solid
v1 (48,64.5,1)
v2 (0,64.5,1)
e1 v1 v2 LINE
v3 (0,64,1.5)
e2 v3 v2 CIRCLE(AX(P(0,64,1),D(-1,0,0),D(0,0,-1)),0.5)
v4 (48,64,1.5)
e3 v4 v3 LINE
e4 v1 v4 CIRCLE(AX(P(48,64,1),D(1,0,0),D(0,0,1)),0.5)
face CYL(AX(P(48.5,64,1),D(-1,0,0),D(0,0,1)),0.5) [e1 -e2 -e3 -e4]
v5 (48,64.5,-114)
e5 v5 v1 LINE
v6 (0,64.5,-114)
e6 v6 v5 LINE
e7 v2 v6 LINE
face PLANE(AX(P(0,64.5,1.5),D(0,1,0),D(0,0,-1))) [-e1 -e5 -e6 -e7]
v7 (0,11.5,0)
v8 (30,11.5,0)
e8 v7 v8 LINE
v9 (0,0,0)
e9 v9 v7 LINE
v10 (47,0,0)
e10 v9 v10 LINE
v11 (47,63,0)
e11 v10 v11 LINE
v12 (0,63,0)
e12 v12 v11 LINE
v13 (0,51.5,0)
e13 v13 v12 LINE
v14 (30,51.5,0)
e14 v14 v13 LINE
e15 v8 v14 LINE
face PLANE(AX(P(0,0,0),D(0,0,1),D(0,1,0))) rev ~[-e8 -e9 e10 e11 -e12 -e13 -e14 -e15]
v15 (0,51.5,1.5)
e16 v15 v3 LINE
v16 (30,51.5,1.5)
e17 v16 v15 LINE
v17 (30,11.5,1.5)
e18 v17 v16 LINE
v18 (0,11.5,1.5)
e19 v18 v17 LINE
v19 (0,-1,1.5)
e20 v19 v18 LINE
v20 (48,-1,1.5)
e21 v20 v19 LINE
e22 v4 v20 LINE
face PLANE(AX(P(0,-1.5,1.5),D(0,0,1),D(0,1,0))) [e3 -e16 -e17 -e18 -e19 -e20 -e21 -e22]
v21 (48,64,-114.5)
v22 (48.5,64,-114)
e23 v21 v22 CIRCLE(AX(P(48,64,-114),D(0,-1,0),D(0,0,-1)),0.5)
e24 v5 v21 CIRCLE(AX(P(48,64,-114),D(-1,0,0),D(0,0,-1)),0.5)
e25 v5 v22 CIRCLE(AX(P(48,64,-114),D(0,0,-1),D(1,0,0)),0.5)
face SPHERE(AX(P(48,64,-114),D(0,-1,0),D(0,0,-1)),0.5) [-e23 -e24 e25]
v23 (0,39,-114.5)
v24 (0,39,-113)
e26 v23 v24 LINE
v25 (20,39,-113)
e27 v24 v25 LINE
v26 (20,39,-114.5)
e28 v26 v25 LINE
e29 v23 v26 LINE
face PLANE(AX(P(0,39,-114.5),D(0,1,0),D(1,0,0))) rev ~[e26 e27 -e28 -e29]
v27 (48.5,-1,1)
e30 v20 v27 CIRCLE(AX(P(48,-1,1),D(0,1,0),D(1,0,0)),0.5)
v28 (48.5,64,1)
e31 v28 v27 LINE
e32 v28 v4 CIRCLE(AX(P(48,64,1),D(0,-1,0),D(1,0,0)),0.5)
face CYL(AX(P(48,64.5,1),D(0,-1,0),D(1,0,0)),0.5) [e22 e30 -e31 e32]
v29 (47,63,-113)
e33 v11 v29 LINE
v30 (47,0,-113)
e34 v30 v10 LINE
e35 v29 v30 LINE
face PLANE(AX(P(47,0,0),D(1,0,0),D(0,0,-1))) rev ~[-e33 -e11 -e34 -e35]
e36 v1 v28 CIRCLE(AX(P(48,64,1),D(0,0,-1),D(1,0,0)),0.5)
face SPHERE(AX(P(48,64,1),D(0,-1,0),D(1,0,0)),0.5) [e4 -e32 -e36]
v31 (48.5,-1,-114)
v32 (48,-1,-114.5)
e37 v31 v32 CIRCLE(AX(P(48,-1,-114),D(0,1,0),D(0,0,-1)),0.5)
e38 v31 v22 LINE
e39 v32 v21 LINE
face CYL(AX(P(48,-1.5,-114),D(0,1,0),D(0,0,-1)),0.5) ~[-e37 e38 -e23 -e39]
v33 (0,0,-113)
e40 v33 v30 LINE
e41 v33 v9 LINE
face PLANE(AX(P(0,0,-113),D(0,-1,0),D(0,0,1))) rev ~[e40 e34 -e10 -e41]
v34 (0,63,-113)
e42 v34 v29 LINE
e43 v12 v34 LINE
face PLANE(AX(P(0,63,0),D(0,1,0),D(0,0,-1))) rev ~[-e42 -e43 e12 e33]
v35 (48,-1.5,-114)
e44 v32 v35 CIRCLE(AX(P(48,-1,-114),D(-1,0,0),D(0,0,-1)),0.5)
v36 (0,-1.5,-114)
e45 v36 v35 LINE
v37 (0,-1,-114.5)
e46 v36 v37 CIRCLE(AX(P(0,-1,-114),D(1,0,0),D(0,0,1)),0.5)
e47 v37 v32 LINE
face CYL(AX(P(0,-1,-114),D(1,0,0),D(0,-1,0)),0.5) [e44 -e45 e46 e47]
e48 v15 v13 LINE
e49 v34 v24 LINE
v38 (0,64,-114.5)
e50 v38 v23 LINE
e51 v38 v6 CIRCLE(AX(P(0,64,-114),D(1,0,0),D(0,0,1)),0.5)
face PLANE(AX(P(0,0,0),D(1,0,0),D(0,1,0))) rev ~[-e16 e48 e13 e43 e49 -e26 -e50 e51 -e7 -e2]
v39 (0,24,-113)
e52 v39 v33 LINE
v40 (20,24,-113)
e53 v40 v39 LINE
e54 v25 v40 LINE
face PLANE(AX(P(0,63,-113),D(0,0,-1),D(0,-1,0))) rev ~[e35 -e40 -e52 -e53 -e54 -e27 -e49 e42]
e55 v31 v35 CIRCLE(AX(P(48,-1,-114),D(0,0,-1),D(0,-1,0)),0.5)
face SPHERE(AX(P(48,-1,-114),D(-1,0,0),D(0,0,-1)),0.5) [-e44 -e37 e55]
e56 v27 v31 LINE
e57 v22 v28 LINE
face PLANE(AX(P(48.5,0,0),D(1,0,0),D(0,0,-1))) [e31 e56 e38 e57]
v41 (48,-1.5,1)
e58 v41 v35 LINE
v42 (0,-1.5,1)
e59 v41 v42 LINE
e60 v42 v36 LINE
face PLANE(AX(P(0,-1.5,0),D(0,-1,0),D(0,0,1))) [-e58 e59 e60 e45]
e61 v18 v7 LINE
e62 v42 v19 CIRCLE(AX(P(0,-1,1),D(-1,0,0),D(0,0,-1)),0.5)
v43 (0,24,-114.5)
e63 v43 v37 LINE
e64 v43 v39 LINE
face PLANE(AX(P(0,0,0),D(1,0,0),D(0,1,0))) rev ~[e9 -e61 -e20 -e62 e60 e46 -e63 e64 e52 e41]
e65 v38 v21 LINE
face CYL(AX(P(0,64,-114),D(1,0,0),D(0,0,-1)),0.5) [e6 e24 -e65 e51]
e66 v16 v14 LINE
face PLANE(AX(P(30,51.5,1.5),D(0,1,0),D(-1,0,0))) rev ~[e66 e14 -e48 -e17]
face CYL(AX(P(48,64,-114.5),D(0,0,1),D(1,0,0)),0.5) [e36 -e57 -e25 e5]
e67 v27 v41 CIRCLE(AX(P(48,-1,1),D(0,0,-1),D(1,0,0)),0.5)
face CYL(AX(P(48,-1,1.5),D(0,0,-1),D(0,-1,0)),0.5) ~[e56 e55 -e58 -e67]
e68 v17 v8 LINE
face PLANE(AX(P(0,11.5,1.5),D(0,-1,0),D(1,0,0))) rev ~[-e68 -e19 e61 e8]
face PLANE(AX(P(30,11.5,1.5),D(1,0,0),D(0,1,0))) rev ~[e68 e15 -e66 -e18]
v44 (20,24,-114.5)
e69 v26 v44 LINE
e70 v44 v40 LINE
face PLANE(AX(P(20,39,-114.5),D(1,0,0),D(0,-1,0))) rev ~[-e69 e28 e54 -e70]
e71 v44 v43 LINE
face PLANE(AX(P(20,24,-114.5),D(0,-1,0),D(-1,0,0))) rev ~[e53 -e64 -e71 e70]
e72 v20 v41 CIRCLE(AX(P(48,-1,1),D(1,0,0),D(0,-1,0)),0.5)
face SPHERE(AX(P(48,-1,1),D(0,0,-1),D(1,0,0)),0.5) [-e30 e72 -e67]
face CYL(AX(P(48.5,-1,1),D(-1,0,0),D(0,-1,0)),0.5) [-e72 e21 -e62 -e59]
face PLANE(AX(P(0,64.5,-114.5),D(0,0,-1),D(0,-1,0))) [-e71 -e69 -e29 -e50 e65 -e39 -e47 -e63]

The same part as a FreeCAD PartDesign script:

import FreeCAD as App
import Part
import Sketcher

V = App.Vector


def edges_at(feature, points):
    """Names of the edges that pass closest to the given points."""
    edges = feature.Shape.Edges
    near = lambda p: min(range(len(edges)), key=lambda i: edges[i].distToShape(Part.Vertex(*p))[0])
    return sorted({f"Edge{near(p) + 1}" for p in points})


def add_polygon(sketch, points):
    """Adds a closed chain of lines whose ends are joined by coincident constraints."""
    first, n = sketch.GeometryCount, len(points)
    for a, b in zip(points, points[1:] + points[:1]):
        sketch.addGeometry(Part.LineSegment(App.Vector(*a, 0), App.Vector(*b, 0)), False)
    for i in range(n):
        sketch.addConstraint(Sketcher.Constraint("Coincident", first + i, 2, first + (i + 1) % n, 1))

doc = App.newDocument("Part")
body = doc.addObject("PartDesign::Body", "Body")

# Sketch on YZ plane
sketch1 = body.newObject("Sketcher::SketchObject", "Sketch")
sketch1.AttachmentSupport = (doc.getObject("YZ_Plane"), [""])
sketch1.MapMode = "FlatFace"
add_polygon(sketch1, [(-1.5, 1.5), (-1.5, 0), (-1.5, -114.5), (64.5, -114.5), (64.5, 1.5)])  # lines 0-4
add_polygon(sketch1, [(0, -113), (0, 0), (63, 0), (63, -113)])  # lines 5-8
sketch1.addConstraint([
    Sketcher.Constraint("Vertical", 0),
    Sketcher.Constraint("Vertical", 1),
    Sketcher.Constraint("Horizontal", 2),
    Sketcher.Constraint("Vertical", 3),
    Sketcher.Constraint("Horizontal", 4),
    Sketcher.Constraint("Vertical", 5),
    Sketcher.Constraint("Horizontal", 6),
    Sketcher.Constraint("Vertical", 7),
    Sketcher.Constraint("Horizontal", 8),
    Sketcher.Constraint("Coincident", 5, 2, -1, 1),
    Sketcher.Constraint("PointOnObject", 0, 2, -1),
    Sketcher.Constraint("DistanceX", 2, 1, 2, 2, 66.0),
    Sketcher.Constraint("DistanceX", 6, 1, 6, 2, 63.0),
    Sketcher.Constraint("DistanceY", 3, 1, 3, 2, 116.0),
    Sketcher.Constraint("DistanceY", 5, 1, 5, 2, 113.0),
    Sketcher.Constraint("DistanceY", 0, 2, 0, 1, 1.5),
    Sketcher.Constraint("DistanceX", 0, 2, -1, 1, 1.5),
])
pad1 = body.newObject("PartDesign::Pad", "Pad")
pad1.Profile = sketch1
pad1.Length = 47

# Sketch on YZ plane
sketch2 = body.newObject("Sketcher::SketchObject", "Sketch001")
sketch2.AttachmentSupport = (doc.getObject("YZ_Plane"), [""])
sketch2.MapMode = "FlatFace"
sketch2.AttachmentOffset = App.Placement(V(0, 0, 47), App.Rotation())
add_polygon(sketch2, [(-2, 2), (-2, -114), (64, -114), (64, 2)])  # lines 0-3
sketch2.addConstraint([
    Sketcher.Constraint("Vertical", 0),
    Sketcher.Constraint("Horizontal", 1),
    Sketcher.Constraint("Vertical", 2),
    Sketcher.Constraint("Horizontal", 3),
    Sketcher.Constraint("DistanceX", 1, 1, 1, 2, 66.0),
    Sketcher.Constraint("DistanceY", 0, 2, 0, 1, 116.0),
    Sketcher.Constraint("DistanceX", 0, 2, -1, 1, 1.5),
    Sketcher.Constraint("DistanceY", 0, 2, -1, 1, 114.5),
])
pad2 = body.newObject("PartDesign::Pad", "Pad001")
pad2.Profile = sketch2
pad2.Length = 1.5

# Sketch on XY plane
sketch3 = body.newObject("Sketcher::SketchObject", "Sketch002")
sketch3.AttachmentSupport = (doc.getObject("XY_Plane"), [""])
sketch3.MapMode = "FlatFace"
sketch3.AttachmentOffset = App.Placement(V(0, 0, 1.5), App.Rotation())
add_polygon(sketch3, [(30, 52), (0, 52), (0, 12), (30, 12)])  # lines 0-3
sketch3.addConstraint([
    Sketcher.Constraint("Horizontal", 0),
    Sketcher.Constraint("Vertical", 1),
    Sketcher.Constraint("Horizontal", 2),
    Sketcher.Constraint("Vertical", 3),
    Sketcher.Constraint("PointOnObject", 0, 2, -2),
    Sketcher.Constraint("DistanceX", 0, 2, 0, 1, 30.0),
    Sketcher.Constraint("DistanceY", 1, 2, 1, 1, 40.0),
    Sketcher.Constraint("DistanceY", -1, 1, 0, 2, 51.5),
])
pocket1 = body.newObject("PartDesign::Pocket", "Pocket")
pocket1.Profile = sketch3
pocket1.Length = 1.5

# Sketch on XY plane
sketch4 = body.newObject("Sketcher::SketchObject", "Sketch003")
sketch4.AttachmentSupport = (doc.getObject("XY_Plane"), [""])
sketch4.MapMode = "FlatFace"
sketch4.AttachmentOffset = App.Placement(V(0, 0, -114.5), App.Rotation())
add_polygon(sketch4, [(20, 24), (0, 24), (0, 39), (20, 39)])  # lines 0-3
sketch4.addConstraint([
    Sketcher.Constraint("Horizontal", 0),
    Sketcher.Constraint("Vertical", 1),
    Sketcher.Constraint("Horizontal", 2),
    Sketcher.Constraint("Vertical", 3),
    Sketcher.Constraint("PointOnObject", 0, 2, -2),
    Sketcher.Constraint("DistanceX", 0, 2, 0, 1, 20.0),
    Sketcher.Constraint("DistanceY", 1, 1, 1, 2, 15.0),
    Sketcher.Constraint("DistanceY", -1, 1, 0, 2, 24.0),
])
pocket2 = body.newObject("PartDesign::Pocket", "Pocket001")
pocket2.Profile = sketch4
pocket2.Length = 1.5
pocket2.Reversed = True
doc.recompute()

fillet = body.newObject("PartDesign::Fillet", "Fillet")
fillet.Base = (pocket2, edges_at(pocket2, [
    (24.25, -1.5, -114.5),
    (48.5, 31.5, -114.5),
    (48.5, -1.5, -56.5),
    (48.5, 31.5, 1.5),
    (24.25, -1.5, 1.5),
    (24.25, 64.5, -114.5),
    (48.5, 64.5, -56.5),
    (24.25, 64.5, 1.5),
]))
fillet.Radius = 0.5

doc.recompute()
